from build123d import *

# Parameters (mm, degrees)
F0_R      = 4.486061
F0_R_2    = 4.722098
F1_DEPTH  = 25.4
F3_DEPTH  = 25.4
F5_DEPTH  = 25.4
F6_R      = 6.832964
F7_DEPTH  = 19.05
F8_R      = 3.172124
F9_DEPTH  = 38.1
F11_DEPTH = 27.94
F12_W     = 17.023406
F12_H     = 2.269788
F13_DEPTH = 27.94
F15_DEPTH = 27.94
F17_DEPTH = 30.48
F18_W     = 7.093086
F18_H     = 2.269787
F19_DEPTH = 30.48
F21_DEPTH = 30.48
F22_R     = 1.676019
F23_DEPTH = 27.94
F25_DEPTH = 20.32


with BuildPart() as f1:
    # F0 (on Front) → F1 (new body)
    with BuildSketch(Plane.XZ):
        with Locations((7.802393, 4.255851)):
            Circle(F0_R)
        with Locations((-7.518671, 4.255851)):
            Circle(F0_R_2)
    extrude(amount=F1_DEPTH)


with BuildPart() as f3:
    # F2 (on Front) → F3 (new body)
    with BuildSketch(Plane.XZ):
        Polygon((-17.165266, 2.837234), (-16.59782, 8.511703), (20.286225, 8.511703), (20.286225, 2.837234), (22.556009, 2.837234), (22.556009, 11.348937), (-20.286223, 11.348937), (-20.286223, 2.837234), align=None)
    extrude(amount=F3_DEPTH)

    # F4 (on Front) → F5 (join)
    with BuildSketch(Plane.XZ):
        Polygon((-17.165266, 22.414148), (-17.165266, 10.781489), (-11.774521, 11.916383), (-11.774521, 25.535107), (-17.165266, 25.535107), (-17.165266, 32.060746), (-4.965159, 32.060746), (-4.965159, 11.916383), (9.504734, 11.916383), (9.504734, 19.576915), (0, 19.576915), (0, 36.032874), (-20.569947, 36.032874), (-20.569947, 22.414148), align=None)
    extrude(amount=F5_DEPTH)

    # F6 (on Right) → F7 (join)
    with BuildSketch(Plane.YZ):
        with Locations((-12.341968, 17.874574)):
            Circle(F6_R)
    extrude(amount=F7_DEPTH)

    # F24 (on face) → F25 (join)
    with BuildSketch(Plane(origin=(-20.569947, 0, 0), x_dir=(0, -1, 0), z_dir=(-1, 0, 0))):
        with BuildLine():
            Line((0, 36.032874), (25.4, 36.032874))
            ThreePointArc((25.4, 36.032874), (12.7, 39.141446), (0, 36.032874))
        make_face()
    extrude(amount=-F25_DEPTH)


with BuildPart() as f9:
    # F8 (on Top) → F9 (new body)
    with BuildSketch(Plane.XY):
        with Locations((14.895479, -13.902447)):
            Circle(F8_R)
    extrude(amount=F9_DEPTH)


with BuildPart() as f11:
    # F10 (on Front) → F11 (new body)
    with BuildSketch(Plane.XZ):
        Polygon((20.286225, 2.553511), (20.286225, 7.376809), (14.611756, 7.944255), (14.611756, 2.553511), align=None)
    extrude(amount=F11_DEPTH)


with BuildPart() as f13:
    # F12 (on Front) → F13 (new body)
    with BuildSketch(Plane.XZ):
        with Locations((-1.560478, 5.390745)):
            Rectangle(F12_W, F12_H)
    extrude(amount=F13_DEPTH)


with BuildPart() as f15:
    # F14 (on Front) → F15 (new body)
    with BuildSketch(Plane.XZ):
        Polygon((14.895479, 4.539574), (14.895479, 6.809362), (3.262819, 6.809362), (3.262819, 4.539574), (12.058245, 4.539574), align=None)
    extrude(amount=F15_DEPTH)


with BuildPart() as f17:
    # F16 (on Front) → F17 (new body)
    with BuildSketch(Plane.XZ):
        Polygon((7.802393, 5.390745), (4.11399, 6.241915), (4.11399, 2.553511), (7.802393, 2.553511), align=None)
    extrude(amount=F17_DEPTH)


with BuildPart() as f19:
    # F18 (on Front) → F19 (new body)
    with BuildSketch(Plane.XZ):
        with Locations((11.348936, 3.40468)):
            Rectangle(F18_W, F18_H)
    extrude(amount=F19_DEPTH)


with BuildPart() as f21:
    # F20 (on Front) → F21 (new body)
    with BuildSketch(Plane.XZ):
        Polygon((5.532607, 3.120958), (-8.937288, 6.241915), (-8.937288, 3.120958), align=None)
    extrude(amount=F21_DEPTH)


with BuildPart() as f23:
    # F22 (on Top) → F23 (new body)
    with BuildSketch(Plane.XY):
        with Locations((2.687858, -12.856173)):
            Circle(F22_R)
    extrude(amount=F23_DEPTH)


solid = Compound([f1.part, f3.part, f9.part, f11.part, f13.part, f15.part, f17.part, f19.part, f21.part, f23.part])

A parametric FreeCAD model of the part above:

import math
import FreeCAD as App
import Part
import Sketcher

V = App.Vector
Q = App.Units.Quantity


def add_polygon(sketch, points):
    """Adds a closed chain of lines whose ends are joined by coincident constraints."""
    first, n = sketch.GeometryCount, len(points)
    for a, b in zip(points, points[1:] + points[:1]):
        sketch.addGeometry(Part.LineSegment(App.Vector(*a, 0), App.Vector(*b, 0)), False)
    for i in range(n):
        sketch.addConstraint(Sketcher.Constraint("Coincident", first + i, 2, first + (i + 1) % n, 1))

doc = App.newDocument("Part")
body = doc.addObject("PartDesign::Body", "Body")
body.AllowCompound = True

# Sketch on XZ plane
sketch1 = body.newObject("Sketcher::SketchObject", "Sketch")
sketch1.AttachmentSupport = (doc.getObject("XZ_Plane"), [""])
sketch1.MapMode = "FlatFace"
sketch1.addGeometry([
    Part.Circle(V(7.8, 4.3, 0), V(0, 0, 1), 4.5),
    Part.Circle(V(-7.5, 4.3, 0), V(0, 0, 1), 4.7),
], False)
sketch1.addConstraint([
    Sketcher.Constraint("Horizontal", 0, 3, 1, 3),
    Sketcher.Constraint("Diameter", 0, 8.972122),
    Sketcher.Constraint("Diameter", 1, 9.444196),
    Sketcher.Constraint("DistanceY", -1, 1, 0, 3, 4.255851),
    Sketcher.Constraint("DistanceX", 1, 3, -1, 1, 7.518671),
    Sketcher.Constraint("DistanceX", -1, 1, 0, 3, 7.802393),
])
pad1 = body.newObject("PartDesign::Pad", "Pad")
pad1.Profile = sketch1
pad1.Length = Q("1 in")
body2 = doc.addObject("PartDesign::Body", "Body001")

# Sketch on XZ plane
sketch2 = body2.newObject("Sketcher::SketchObject", "Sketch001")
sketch2.AttachmentSupport = (doc.getObject("XZ_Plane001"), [""])
sketch2.MapMode = "FlatFace"
add_polygon(sketch2, [(-17.2, 2.8), (-16.6, 8.5), (20.3, 8.5), (20.3, 2.8), (22.6, 2.8), (22.6, 11.3), (-20.3, 11.3), (-20.3, 2.8)])  # lines 0-7
sketch2.addConstraint([
    Sketcher.Constraint("Horizontal", 1),
    Sketcher.Constraint("Vertical", 2),
    Sketcher.Constraint("Horizontal", 3),
    Sketcher.Constraint("Vertical", 4),
    Sketcher.Constraint("Horizontal", 5),
    Sketcher.Constraint("Vertical", 6),
    Sketcher.Constraint("Horizontal", 7),
    Sketcher.Constraint("Symmetric", 2, 2, 6, 2, -2),
    Sketcher.Constraint("DistanceX", 5, 2, 5, 1, 42.842232),
    Sketcher.Constraint("DistanceY", 2, 2, 2, 1, 5.674469),
    Sketcher.Constraint("Distance", 0, 5.702771),
    Sketcher.Constraint("DistanceX", 1, 1, 1, 2, 36.884045),
    Sketcher.Constraint("DistanceX", 3, 1, 3, 2, 2.269784),
    Sketcher.Constraint("DistanceY", 4, 1, 4, 2, 8.511703),
    Sketcher.Constraint("DistanceY", -1, 1, 0, 2, 8.511703),
])
pad2 = body2.newObject("PartDesign::Pad", "Pad001")
pad2.Profile = sketch2
pad2.Length = Q("1 in")

# Sketch on XZ plane
sketch3 = body2.newObject("Sketcher::SketchObject", "Sketch002")
sketch3.AttachmentSupport = (doc.getObject("XZ_Plane001"), [""])
sketch3.MapMode = "FlatFace"
add_polygon(sketch3, [(-17.2, 22.4), (-17.2, 10.8), (-11.8, 11.9), (-11.8, 25.5), (-17.2, 25.5), (-17.2, 32.1), (-5, 32.1), (-5, 11.9), (9.5, 11.9), (9.5, 19.6), (0, 19.6), (0, 36), (-20.6, 36), (-20.6, 22.4)])  # lines 0-13
sketch3.addConstraint([
    Sketcher.Constraint("Vertical", 0),
    Sketcher.Constraint("Vertical", 2),
    Sketcher.Constraint("Horizontal", 3),
    Sketcher.Constraint("Vertical", 4),
    Sketcher.Constraint("Horizontal", 5),
    Sketcher.Constraint("Vertical", 6),
    Sketcher.Constraint("Horizontal", 7),
    Sketcher.Constraint("Vertical", 8),
    Sketcher.Constraint("Horizontal", 9),
    Sketcher.Constraint("Vertical", 10),
    Sketcher.Constraint("Horizontal", 11),
    Sketcher.Constraint("Vertical", 12),
    Sketcher.Constraint("Horizontal", 13),
    Sketcher.Constraint("PointOnObject", 9, 2, -2),
    Sketcher.Constraint("Horizontal", 1, 2, 6, 2),
    Sketcher.Constraint("Vertical", 0, 2, 3, 2),
    Sketcher.Constraint("Equal", 2, 12),
    Sketcher.Constraint("DistanceX", 0, 2, 7, 2, Q("1.05 in")),
    Sketcher.Constraint("DistanceX", 13, 1, 13, 2, 3.404681),
    Sketcher.Constraint("DistanceY", 0, 2, 0, 1, 11.632659),
    Sketcher.Constraint("DistanceY", 4, 1, 4, 2, 6.525639),
    Sketcher.Constraint("DistanceY", 10, 1, 10, 2, 16.455959),
    Sketcher.Constraint("DistanceY", 12, 2, 4, 2, 9.646598),
    Sketcher.Constraint("DistanceX", 3, 2, 3, 1, 5.390745),
    Sketcher.Constraint("DistanceX", 5, 1, 5, 2, 12.200107),
    Sketcher.Constraint("DistanceX", 9, 2, 9, 1, 9.504734),
    Sketcher.Constraint("DistanceY", 2, 1, 2, 2, 13.618724),
    Sketcher.Constraint("DistanceY", -1, 1, 0, 2, 10.781489),
])
pad3 = body2.newObject("PartDesign::Pad", "Pad002")
pad3.Profile = sketch3
pad3.Length = Q("1 in")

# Sketch on YZ plane
sketch4 = body2.newObject("Sketcher::SketchObject", "Sketch003")
sketch4.AttachmentSupport = (doc.getObject("YZ_Plane001"), [""])
sketch4.MapMode = "FlatFace"
sketch4.addGeometry(Part.Circle(V(-12, 18, 0), V(0, 0, 1), 7), False)
sketch4.addConstraint([
    Sketcher.Constraint("Diameter", 0, 13.665928),
    Sketcher.Constraint("DistanceX", 0, 3, -1, 1, 12.341968),
    Sketcher.Constraint("DistanceY", -1, 1, 0, 3, 17.874574),
])
pad4 = body2.newObject("PartDesign::Pad", "Pad003")
pad4.Profile = sketch4
pad4.Length = Q("0.75 in")

# Sketch on YZ plane
sketch5 = body2.newObject("Sketcher::SketchObject", "Sketch004")
sketch5.AttachmentSupport = (doc.getObject("YZ_Plane001"), [""])
sketch5.MapMode = "FlatFace"
sketch5.AttachmentOffset = App.Placement(V(0, 0, -20.569947), App.Rotation())
sketch5.addGeometry([
    Part.LineSegment(V(0, 36, 0), V(-25, 36, 0)),
    Part.ArcOfCircle(Part.Circle(V(-13, 12, 0), V(0, 0, 1), 27), math.radians(62), math.radians(118)),
], False)
sketch5.addConstraint([
    Sketcher.Constraint("Coincident", 0, 1, 1, 1),
    Sketcher.Constraint("Coincident", 1, 2, 0, 2),
    Sketcher.Constraint("Horizontal", 0),
    Sketcher.Constraint("PointOnObject", 0, 1, -2),
    Sketcher.Constraint("DistanceX", 0, 2, 0, 1, Q("1 in")),
    Sketcher.Constraint("Radius", 1, 27.497066),
    Sketcher.Constraint("DistanceY", -1, 1, 1, 3, 11.64438),
])
pad5 = body2.newObject("PartDesign::Pad", "Pad004")
pad5.Profile = sketch5
pad5.Length = Q("0.8 in")
body3 = doc.addObject("PartDesign::Body", "Body002")

# Sketch on XY plane
sketch6 = body3.newObject("Sketcher::SketchObject", "Sketch005")
sketch6.AttachmentSupport = (doc.getObject("XY_Plane002"), [""])
sketch6.MapMode = "FlatFace"
sketch6.addGeometry(Part.Circle(V(14.9, -13.9, 0), V(0, 0, 1), 3.2), False)
sketch6.addConstraint([
    Sketcher.Constraint("Diameter", 0, 6.344248),
    Sketcher.Constraint("DistanceX", -1, 1, 0, 3, 14.895479),
    Sketcher.Constraint("DistanceY", 0, 3, -1, 1, 13.902447),
])
pad6 = body3.newObject("PartDesign::Pad", "Pad005")
pad6.Profile = sketch6
pad6.Length = Q("1.5 in")
body4 = doc.addObject("PartDesign::Body", "Body003")

# Sketch on XZ plane
sketch7 = body4.newObject("Sketcher::SketchObject", "Sketch006")
sketch7.AttachmentSupport = (doc.getObject("XZ_Plane003"), [""])
sketch7.MapMode = "FlatFace"
add_polygon(sketch7, [(20.3, 2.6), (20.3, 7.4), (14.6, 7.9), (14.6, 2.6)])  # lines 0-3
sketch7.addConstraint([
    Sketcher.Constraint("Vertical", 0),
    Sketcher.Constraint("Vertical", 2),
    Sketcher.Constraint("Horizontal", 3),
    Sketcher.Constraint("DistanceX", 3, 1, 3, 2, 5.674469),
    Sketcher.Constraint("Distance", 1, 5.702771),
    Sketcher.Constraint("DistanceY", 0, 1, 0, 2, 4.823298),
    Sketcher.Constraint("DistanceY", -1, 1, 0, 2, 7.376809),
    Sketcher.Constraint("DistanceX", -1, 1, 0, 2, 20.286225),
])
pad7 = body4.newObject("PartDesign::Pad", "Pad006")
pad7.Profile = sketch7
pad7.Length = Q("1.1 in")
body5 = doc.addObject("PartDesign::Body", "Body004")

# Sketch on XZ plane
sketch8 = body5.newObject("Sketcher::SketchObject", "Sketch007")
sketch8.AttachmentSupport = (doc.getObject("XZ_Plane004"), [""])
sketch8.MapMode = "FlatFace"
add_polygon(sketch8, [(-10.1, 6.5), (-10.1, 4.3), (7, 4.3), (7, 6.5)])  # lines 0-3
sketch8.addConstraint([
    Sketcher.Constraint("Vertical", 0),
    Sketcher.Constraint("Horizontal", 1),
    Sketcher.Constraint("Vertical", 2),
    Sketcher.Constraint("Horizontal", 3),
    Sketcher.Constraint("DistanceY", 0, 2, 0, 1, 2.269788),
    Sketcher.Constraint("DistanceX", 1, 1, 1, 2, 17.023406),
    Sketcher.Constraint("DistanceX", 0, 2, -1, 1, 10.072181),
    Sketcher.Constraint("DistanceY", -1, 1, 0, 2, 4.255851),
])
pad8 = body5.newObject("PartDesign::Pad", "Pad007")
pad8.Profile = sketch8
pad8.Length = Q("1.1 in")
body6 = doc.addObject("PartDesign::Body", "Body005")

# Sketch on XZ plane
sketch9 = body6.newObject("Sketcher::SketchObject", "Sketch008")
sketch9.AttachmentSupport = (doc.getObject("XZ_Plane005"), [""])
sketch9.MapMode = "FlatFace"
add_polygon(sketch9, [(14.9, 4.5), (14.9, 6.8), (3.3, 6.8), (3.3, 4.5)])  # lines 0-3
sketch9.addConstraint([
    Sketcher.Constraint("Vertical", 0),
    Sketcher.Constraint("Horizontal", 1),
    Sketcher.Constraint("Vertical", 2),
    Sketcher.Constraint("Horizontal", 3),
    Sketcher.Constraint("DistanceX", 1, 2, 1, 1, 11.63266),
    Sketcher.Constraint("DistanceY", 0, 1, 0, 2, 2.269788),
    Sketcher.Constraint("DistanceX", -1, 1, 0, 2, 14.895479),
    Sketcher.Constraint("DistanceY", -1, 1, 0, 2, 6.809362),
])
pad9 = body6.newObject("PartDesign::Pad", "Pad008")
pad9.Profile = sketch9
pad9.Length = Q("1.1 in")
body7 = doc.addObject("PartDesign::Body", "Body006")

# Sketch on XZ plane
sketch10 = body7.newObject("Sketcher::SketchObject", "Sketch009")
sketch10.AttachmentSupport = (doc.getObject("XZ_Plane006"), [""])
sketch10.MapMode = "FlatFace"
add_polygon(sketch10, [(7.8, 5.4), (4.1, 6.2), (4.1, 2.6), (7.8, 2.6)])  # lines 0-3
sketch10.addConstraint([
    Sketcher.Constraint("Vertical", 1),
    Sketcher.Constraint("Horizontal", 2),
    Sketcher.Constraint("Vertical", 3),
    Sketcher.Constraint("Equal", 2, 1),
    Sketcher.Constraint("Distance", 0, 3.785341),
    Sketcher.Constraint("DistanceX", 2, 1, 2, 2, 3.688403),
    Sketcher.Constraint("DistanceX", -1, 1, 0, 2, 4.11399),
    Sketcher.Constraint("DistanceY", -1, 1, 1, 2, 2.553511),
])
pad10 = body7.newObject("PartDesign::Pad", "Pad009")
pad10.Profile = sketch10
pad10.Length = Q("1.2 in")
body8 = doc.addObject("PartDesign::Body", "Body007")

# Sketch on XZ plane
sketch11 = body8.newObject("Sketcher::SketchObject", "Sketch010")
sketch11.AttachmentSupport = (doc.getObject("XZ_Plane007"), [""])
sketch11.MapMode = "FlatFace"
add_polygon(sketch11, [(7.8, 4.5), (7.8, 2.3), (14.9, 2.3), (14.9, 4.5)])  # lines 0-3
sketch11.addConstraint([
    Sketcher.Constraint("Vertical", 0),
    Sketcher.Constraint("Horizontal", 1),
    Sketcher.Constraint("Vertical", 2),
    Sketcher.Constraint("Horizontal", 3),
    Sketcher.Constraint("DistanceX", 1, 1, 1, 2, 7.093086),
    Sketcher.Constraint("DistanceY", 0, 2, 0, 1, 2.269787),
    Sketcher.Constraint("DistanceX", -1, 1, 1, 2, 14.895479),
    Sketcher.Constraint("DistanceY", -1, 1, 0, 2, 2.269786),
])
pad11 = body8.newObject("PartDesign::Pad", "Pad010")
pad11.Profile = sketch11
pad11.Length = Q("1.2 in")
body9 = doc.addObject("PartDesign::Body", "Body008")

# Sketch on XZ plane
sketch12 = body9.newObject("Sketcher::SketchObject", "Sketch011")
sketch12.AttachmentSupport = (doc.getObject("XZ_Plane008"), [""])
sketch12.MapMode = "FlatFace"
add_polygon(sketch12, [(5.5, 3.1), (-8.9, 6.2), (-8.9, 3.1)])  # lines 0-2
sketch12.addConstraint([
    Sketcher.Constraint("Vertical", 1),
    Sketcher.Constraint("Horizontal", 2),
    Sketcher.Constraint("DistanceX", 2, 1, 2, 2, 14.469895),
    Sketcher.Constraint("DistanceY", 1, 2, 1, 1, 3.120957),
    Sketcher.Constraint("DistanceX", 0, 2, -1, 1, 8.937288),
    Sketcher.Constraint("DistanceY", -1, 1, 0, 2, 6.241915),
])
pad12 = body9.newObject("PartDesign::Pad", "Pad011")
pad12.Profile = sketch12
pad12.Length = Q("1.2 in")
body10 = doc.addObject("PartDesign::Body", "Body009")

# Sketch on XY plane
sketch13 = body10.newObject("Sketcher::SketchObject", "Sketch012")
sketch13.AttachmentSupport = (doc.getObject("XY_Plane009"), [""])
sketch13.MapMode = "FlatFace"
sketch13.addGeometry(Part.Circle(V(2.7, -12.9, 0), V(0, 0, 1), 1.7), False)
sketch13.addConstraint([
    Sketcher.Constraint("Diameter", 0, 3.352038),
    Sketcher.Constraint("DistanceX", -1, 1, 0, 3, 2.687858),
    Sketcher.Constraint("DistanceY", 0, 3, -1, 1, 12.856173),
])
pad13 = body10.newObject("PartDesign::Pad", "Pad012")
pad13.Profile = sketch13
pad13.Length = Q("1.1 in")

doc.recompute()
